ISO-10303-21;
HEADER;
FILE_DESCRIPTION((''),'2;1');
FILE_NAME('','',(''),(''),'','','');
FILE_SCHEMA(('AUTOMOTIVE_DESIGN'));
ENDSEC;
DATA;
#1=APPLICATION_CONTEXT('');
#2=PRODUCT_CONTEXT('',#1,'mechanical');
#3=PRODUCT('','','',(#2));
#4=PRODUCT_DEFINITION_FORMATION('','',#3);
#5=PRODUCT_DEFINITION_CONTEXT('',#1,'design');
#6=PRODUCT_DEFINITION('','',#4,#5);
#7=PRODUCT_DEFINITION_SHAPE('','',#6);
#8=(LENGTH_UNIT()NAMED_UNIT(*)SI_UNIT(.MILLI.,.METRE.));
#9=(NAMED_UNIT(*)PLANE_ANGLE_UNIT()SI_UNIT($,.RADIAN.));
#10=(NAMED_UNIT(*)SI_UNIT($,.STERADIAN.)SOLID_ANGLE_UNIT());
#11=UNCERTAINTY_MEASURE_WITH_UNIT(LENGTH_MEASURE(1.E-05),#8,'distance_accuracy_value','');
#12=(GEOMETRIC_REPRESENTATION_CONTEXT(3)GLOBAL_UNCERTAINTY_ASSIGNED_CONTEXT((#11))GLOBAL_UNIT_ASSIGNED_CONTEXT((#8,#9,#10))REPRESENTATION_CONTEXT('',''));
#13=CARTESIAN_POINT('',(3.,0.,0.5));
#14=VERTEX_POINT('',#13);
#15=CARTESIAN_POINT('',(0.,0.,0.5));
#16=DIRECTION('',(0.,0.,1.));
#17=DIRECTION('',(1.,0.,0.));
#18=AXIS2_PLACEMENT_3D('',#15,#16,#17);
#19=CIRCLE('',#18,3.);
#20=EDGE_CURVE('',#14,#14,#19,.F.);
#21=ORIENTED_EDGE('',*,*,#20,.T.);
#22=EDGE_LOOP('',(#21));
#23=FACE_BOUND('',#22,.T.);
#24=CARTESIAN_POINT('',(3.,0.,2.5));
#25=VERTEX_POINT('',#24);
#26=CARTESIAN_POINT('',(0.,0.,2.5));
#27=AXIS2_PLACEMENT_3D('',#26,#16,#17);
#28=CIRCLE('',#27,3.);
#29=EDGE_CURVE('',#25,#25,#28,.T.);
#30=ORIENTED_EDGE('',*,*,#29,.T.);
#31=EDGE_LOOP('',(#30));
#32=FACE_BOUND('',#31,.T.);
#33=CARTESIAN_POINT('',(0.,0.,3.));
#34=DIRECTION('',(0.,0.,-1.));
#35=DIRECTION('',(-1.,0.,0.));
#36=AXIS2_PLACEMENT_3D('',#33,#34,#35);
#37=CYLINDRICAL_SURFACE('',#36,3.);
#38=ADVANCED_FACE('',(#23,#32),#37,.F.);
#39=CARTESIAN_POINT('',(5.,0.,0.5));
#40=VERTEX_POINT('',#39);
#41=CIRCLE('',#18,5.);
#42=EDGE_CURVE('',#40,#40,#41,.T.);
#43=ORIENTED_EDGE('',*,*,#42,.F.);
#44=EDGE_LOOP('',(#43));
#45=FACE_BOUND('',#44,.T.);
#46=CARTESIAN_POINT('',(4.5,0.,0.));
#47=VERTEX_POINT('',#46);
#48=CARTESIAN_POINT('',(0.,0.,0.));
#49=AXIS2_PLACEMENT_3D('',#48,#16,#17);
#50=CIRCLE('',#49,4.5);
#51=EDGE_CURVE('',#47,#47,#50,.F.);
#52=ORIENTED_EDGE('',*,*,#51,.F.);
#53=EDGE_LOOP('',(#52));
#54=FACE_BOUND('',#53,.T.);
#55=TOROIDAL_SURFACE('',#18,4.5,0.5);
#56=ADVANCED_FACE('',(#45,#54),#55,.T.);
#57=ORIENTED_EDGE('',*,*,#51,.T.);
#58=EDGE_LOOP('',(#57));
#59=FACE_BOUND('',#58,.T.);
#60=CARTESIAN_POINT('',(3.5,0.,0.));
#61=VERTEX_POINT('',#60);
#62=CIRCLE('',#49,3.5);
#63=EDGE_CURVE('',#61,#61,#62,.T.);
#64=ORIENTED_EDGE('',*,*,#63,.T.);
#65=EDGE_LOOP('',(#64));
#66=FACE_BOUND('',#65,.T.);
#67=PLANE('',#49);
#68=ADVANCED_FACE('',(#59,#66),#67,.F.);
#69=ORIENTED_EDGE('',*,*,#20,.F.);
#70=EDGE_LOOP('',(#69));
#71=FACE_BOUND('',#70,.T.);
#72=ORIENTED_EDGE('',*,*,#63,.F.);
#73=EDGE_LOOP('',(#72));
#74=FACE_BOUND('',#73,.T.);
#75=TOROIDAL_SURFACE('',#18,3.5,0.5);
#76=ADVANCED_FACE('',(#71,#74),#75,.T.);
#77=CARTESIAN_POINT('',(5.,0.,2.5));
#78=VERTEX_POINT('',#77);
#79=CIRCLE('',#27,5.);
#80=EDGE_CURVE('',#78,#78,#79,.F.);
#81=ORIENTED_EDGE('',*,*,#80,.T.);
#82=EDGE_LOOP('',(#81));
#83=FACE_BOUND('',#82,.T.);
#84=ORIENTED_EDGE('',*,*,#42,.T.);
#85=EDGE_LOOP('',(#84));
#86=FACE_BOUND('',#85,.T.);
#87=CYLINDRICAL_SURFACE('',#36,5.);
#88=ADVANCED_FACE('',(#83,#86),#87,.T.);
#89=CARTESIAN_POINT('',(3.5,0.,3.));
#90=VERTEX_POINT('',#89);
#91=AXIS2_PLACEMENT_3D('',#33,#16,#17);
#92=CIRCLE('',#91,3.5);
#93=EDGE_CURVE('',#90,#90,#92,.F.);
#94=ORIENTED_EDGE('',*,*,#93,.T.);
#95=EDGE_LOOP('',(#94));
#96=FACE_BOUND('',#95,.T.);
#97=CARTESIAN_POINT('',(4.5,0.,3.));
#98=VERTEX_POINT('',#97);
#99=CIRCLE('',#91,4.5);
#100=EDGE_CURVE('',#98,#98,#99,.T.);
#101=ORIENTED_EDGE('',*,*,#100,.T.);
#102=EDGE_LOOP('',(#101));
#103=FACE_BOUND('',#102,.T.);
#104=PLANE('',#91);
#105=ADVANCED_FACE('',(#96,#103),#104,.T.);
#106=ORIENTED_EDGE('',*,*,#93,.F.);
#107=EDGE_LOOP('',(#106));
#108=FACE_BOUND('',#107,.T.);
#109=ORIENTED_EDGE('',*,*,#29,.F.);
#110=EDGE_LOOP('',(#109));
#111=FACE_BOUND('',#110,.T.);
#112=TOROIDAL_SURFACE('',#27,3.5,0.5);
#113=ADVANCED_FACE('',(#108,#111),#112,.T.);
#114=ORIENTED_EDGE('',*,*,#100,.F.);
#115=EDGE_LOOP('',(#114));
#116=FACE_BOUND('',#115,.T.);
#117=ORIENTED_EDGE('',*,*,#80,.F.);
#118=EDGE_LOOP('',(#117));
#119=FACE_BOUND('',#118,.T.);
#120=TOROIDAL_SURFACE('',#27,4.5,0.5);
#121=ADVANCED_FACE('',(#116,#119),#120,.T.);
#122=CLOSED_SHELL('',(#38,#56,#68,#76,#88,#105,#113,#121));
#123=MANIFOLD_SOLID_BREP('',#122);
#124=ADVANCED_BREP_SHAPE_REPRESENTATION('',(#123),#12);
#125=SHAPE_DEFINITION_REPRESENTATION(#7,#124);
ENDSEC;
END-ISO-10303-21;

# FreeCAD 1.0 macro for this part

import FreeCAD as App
import Part
import Sketcher
Q = App.Units.Quantity


def edges_at(feature, points):
    """Names of the edges that pass closest to the given points."""
    edges = feature.Shape.Edges
    near = lambda p: min(range(len(edges)), key=lambda i: edges[i].distToShape(Part.Vertex(*p))[0])
    return sorted({f"Edge{near(p) + 1}" for p in points})

doc = App.newDocument("Part")
body = doc.addObject("PartDesign::Body", "Body")

# Sketch on XY plane
sketch1 = doc.addObject("Sketcher::SketchObject", "Sketch")
body.addObject(sketch1)
sketch1.AttachmentSupport = (doc.XY_Plane, [""])
sketch1.MapMode = "FlatFace"
sketch1.addGeometry([
    Part.Circle(App.Vector(0, 0, 0), App.Vector(0, 0, 1), 5),
    Part.Circle(App.Vector(0, 0, 0), App.Vector(0, 0, 1), 3),
], False)
sketch1.addConstraint([
    Sketcher.Constraint("Coincident", 0, 3, -1, 1),
    Sketcher.Constraint("Coincident", 1, 3, -1, 1),
    Sketcher.Constraint("Diameter", 0, Q("10 mm")),
    Sketcher.Constraint("Diameter", 1, Q("6 mm")),
])
pad1 = doc.addObject("PartDesign::Pad", "Pad")
body.addObject(pad1)
pad1.Profile = sketch1
pad1.Length = 3
doc.recompute()

fillet = doc.addObject("PartDesign::Fillet", "Fillet")
body.addObject(fillet)
fillet.Base = (pad1, edges_at(pad1, [
    (-5, 0, 0),
    (-5, 0, 3),
    (-3, 0, 0),
    (-3, 0, 3),
]))
fillet.Radius = 0.5

doc.recompute()
